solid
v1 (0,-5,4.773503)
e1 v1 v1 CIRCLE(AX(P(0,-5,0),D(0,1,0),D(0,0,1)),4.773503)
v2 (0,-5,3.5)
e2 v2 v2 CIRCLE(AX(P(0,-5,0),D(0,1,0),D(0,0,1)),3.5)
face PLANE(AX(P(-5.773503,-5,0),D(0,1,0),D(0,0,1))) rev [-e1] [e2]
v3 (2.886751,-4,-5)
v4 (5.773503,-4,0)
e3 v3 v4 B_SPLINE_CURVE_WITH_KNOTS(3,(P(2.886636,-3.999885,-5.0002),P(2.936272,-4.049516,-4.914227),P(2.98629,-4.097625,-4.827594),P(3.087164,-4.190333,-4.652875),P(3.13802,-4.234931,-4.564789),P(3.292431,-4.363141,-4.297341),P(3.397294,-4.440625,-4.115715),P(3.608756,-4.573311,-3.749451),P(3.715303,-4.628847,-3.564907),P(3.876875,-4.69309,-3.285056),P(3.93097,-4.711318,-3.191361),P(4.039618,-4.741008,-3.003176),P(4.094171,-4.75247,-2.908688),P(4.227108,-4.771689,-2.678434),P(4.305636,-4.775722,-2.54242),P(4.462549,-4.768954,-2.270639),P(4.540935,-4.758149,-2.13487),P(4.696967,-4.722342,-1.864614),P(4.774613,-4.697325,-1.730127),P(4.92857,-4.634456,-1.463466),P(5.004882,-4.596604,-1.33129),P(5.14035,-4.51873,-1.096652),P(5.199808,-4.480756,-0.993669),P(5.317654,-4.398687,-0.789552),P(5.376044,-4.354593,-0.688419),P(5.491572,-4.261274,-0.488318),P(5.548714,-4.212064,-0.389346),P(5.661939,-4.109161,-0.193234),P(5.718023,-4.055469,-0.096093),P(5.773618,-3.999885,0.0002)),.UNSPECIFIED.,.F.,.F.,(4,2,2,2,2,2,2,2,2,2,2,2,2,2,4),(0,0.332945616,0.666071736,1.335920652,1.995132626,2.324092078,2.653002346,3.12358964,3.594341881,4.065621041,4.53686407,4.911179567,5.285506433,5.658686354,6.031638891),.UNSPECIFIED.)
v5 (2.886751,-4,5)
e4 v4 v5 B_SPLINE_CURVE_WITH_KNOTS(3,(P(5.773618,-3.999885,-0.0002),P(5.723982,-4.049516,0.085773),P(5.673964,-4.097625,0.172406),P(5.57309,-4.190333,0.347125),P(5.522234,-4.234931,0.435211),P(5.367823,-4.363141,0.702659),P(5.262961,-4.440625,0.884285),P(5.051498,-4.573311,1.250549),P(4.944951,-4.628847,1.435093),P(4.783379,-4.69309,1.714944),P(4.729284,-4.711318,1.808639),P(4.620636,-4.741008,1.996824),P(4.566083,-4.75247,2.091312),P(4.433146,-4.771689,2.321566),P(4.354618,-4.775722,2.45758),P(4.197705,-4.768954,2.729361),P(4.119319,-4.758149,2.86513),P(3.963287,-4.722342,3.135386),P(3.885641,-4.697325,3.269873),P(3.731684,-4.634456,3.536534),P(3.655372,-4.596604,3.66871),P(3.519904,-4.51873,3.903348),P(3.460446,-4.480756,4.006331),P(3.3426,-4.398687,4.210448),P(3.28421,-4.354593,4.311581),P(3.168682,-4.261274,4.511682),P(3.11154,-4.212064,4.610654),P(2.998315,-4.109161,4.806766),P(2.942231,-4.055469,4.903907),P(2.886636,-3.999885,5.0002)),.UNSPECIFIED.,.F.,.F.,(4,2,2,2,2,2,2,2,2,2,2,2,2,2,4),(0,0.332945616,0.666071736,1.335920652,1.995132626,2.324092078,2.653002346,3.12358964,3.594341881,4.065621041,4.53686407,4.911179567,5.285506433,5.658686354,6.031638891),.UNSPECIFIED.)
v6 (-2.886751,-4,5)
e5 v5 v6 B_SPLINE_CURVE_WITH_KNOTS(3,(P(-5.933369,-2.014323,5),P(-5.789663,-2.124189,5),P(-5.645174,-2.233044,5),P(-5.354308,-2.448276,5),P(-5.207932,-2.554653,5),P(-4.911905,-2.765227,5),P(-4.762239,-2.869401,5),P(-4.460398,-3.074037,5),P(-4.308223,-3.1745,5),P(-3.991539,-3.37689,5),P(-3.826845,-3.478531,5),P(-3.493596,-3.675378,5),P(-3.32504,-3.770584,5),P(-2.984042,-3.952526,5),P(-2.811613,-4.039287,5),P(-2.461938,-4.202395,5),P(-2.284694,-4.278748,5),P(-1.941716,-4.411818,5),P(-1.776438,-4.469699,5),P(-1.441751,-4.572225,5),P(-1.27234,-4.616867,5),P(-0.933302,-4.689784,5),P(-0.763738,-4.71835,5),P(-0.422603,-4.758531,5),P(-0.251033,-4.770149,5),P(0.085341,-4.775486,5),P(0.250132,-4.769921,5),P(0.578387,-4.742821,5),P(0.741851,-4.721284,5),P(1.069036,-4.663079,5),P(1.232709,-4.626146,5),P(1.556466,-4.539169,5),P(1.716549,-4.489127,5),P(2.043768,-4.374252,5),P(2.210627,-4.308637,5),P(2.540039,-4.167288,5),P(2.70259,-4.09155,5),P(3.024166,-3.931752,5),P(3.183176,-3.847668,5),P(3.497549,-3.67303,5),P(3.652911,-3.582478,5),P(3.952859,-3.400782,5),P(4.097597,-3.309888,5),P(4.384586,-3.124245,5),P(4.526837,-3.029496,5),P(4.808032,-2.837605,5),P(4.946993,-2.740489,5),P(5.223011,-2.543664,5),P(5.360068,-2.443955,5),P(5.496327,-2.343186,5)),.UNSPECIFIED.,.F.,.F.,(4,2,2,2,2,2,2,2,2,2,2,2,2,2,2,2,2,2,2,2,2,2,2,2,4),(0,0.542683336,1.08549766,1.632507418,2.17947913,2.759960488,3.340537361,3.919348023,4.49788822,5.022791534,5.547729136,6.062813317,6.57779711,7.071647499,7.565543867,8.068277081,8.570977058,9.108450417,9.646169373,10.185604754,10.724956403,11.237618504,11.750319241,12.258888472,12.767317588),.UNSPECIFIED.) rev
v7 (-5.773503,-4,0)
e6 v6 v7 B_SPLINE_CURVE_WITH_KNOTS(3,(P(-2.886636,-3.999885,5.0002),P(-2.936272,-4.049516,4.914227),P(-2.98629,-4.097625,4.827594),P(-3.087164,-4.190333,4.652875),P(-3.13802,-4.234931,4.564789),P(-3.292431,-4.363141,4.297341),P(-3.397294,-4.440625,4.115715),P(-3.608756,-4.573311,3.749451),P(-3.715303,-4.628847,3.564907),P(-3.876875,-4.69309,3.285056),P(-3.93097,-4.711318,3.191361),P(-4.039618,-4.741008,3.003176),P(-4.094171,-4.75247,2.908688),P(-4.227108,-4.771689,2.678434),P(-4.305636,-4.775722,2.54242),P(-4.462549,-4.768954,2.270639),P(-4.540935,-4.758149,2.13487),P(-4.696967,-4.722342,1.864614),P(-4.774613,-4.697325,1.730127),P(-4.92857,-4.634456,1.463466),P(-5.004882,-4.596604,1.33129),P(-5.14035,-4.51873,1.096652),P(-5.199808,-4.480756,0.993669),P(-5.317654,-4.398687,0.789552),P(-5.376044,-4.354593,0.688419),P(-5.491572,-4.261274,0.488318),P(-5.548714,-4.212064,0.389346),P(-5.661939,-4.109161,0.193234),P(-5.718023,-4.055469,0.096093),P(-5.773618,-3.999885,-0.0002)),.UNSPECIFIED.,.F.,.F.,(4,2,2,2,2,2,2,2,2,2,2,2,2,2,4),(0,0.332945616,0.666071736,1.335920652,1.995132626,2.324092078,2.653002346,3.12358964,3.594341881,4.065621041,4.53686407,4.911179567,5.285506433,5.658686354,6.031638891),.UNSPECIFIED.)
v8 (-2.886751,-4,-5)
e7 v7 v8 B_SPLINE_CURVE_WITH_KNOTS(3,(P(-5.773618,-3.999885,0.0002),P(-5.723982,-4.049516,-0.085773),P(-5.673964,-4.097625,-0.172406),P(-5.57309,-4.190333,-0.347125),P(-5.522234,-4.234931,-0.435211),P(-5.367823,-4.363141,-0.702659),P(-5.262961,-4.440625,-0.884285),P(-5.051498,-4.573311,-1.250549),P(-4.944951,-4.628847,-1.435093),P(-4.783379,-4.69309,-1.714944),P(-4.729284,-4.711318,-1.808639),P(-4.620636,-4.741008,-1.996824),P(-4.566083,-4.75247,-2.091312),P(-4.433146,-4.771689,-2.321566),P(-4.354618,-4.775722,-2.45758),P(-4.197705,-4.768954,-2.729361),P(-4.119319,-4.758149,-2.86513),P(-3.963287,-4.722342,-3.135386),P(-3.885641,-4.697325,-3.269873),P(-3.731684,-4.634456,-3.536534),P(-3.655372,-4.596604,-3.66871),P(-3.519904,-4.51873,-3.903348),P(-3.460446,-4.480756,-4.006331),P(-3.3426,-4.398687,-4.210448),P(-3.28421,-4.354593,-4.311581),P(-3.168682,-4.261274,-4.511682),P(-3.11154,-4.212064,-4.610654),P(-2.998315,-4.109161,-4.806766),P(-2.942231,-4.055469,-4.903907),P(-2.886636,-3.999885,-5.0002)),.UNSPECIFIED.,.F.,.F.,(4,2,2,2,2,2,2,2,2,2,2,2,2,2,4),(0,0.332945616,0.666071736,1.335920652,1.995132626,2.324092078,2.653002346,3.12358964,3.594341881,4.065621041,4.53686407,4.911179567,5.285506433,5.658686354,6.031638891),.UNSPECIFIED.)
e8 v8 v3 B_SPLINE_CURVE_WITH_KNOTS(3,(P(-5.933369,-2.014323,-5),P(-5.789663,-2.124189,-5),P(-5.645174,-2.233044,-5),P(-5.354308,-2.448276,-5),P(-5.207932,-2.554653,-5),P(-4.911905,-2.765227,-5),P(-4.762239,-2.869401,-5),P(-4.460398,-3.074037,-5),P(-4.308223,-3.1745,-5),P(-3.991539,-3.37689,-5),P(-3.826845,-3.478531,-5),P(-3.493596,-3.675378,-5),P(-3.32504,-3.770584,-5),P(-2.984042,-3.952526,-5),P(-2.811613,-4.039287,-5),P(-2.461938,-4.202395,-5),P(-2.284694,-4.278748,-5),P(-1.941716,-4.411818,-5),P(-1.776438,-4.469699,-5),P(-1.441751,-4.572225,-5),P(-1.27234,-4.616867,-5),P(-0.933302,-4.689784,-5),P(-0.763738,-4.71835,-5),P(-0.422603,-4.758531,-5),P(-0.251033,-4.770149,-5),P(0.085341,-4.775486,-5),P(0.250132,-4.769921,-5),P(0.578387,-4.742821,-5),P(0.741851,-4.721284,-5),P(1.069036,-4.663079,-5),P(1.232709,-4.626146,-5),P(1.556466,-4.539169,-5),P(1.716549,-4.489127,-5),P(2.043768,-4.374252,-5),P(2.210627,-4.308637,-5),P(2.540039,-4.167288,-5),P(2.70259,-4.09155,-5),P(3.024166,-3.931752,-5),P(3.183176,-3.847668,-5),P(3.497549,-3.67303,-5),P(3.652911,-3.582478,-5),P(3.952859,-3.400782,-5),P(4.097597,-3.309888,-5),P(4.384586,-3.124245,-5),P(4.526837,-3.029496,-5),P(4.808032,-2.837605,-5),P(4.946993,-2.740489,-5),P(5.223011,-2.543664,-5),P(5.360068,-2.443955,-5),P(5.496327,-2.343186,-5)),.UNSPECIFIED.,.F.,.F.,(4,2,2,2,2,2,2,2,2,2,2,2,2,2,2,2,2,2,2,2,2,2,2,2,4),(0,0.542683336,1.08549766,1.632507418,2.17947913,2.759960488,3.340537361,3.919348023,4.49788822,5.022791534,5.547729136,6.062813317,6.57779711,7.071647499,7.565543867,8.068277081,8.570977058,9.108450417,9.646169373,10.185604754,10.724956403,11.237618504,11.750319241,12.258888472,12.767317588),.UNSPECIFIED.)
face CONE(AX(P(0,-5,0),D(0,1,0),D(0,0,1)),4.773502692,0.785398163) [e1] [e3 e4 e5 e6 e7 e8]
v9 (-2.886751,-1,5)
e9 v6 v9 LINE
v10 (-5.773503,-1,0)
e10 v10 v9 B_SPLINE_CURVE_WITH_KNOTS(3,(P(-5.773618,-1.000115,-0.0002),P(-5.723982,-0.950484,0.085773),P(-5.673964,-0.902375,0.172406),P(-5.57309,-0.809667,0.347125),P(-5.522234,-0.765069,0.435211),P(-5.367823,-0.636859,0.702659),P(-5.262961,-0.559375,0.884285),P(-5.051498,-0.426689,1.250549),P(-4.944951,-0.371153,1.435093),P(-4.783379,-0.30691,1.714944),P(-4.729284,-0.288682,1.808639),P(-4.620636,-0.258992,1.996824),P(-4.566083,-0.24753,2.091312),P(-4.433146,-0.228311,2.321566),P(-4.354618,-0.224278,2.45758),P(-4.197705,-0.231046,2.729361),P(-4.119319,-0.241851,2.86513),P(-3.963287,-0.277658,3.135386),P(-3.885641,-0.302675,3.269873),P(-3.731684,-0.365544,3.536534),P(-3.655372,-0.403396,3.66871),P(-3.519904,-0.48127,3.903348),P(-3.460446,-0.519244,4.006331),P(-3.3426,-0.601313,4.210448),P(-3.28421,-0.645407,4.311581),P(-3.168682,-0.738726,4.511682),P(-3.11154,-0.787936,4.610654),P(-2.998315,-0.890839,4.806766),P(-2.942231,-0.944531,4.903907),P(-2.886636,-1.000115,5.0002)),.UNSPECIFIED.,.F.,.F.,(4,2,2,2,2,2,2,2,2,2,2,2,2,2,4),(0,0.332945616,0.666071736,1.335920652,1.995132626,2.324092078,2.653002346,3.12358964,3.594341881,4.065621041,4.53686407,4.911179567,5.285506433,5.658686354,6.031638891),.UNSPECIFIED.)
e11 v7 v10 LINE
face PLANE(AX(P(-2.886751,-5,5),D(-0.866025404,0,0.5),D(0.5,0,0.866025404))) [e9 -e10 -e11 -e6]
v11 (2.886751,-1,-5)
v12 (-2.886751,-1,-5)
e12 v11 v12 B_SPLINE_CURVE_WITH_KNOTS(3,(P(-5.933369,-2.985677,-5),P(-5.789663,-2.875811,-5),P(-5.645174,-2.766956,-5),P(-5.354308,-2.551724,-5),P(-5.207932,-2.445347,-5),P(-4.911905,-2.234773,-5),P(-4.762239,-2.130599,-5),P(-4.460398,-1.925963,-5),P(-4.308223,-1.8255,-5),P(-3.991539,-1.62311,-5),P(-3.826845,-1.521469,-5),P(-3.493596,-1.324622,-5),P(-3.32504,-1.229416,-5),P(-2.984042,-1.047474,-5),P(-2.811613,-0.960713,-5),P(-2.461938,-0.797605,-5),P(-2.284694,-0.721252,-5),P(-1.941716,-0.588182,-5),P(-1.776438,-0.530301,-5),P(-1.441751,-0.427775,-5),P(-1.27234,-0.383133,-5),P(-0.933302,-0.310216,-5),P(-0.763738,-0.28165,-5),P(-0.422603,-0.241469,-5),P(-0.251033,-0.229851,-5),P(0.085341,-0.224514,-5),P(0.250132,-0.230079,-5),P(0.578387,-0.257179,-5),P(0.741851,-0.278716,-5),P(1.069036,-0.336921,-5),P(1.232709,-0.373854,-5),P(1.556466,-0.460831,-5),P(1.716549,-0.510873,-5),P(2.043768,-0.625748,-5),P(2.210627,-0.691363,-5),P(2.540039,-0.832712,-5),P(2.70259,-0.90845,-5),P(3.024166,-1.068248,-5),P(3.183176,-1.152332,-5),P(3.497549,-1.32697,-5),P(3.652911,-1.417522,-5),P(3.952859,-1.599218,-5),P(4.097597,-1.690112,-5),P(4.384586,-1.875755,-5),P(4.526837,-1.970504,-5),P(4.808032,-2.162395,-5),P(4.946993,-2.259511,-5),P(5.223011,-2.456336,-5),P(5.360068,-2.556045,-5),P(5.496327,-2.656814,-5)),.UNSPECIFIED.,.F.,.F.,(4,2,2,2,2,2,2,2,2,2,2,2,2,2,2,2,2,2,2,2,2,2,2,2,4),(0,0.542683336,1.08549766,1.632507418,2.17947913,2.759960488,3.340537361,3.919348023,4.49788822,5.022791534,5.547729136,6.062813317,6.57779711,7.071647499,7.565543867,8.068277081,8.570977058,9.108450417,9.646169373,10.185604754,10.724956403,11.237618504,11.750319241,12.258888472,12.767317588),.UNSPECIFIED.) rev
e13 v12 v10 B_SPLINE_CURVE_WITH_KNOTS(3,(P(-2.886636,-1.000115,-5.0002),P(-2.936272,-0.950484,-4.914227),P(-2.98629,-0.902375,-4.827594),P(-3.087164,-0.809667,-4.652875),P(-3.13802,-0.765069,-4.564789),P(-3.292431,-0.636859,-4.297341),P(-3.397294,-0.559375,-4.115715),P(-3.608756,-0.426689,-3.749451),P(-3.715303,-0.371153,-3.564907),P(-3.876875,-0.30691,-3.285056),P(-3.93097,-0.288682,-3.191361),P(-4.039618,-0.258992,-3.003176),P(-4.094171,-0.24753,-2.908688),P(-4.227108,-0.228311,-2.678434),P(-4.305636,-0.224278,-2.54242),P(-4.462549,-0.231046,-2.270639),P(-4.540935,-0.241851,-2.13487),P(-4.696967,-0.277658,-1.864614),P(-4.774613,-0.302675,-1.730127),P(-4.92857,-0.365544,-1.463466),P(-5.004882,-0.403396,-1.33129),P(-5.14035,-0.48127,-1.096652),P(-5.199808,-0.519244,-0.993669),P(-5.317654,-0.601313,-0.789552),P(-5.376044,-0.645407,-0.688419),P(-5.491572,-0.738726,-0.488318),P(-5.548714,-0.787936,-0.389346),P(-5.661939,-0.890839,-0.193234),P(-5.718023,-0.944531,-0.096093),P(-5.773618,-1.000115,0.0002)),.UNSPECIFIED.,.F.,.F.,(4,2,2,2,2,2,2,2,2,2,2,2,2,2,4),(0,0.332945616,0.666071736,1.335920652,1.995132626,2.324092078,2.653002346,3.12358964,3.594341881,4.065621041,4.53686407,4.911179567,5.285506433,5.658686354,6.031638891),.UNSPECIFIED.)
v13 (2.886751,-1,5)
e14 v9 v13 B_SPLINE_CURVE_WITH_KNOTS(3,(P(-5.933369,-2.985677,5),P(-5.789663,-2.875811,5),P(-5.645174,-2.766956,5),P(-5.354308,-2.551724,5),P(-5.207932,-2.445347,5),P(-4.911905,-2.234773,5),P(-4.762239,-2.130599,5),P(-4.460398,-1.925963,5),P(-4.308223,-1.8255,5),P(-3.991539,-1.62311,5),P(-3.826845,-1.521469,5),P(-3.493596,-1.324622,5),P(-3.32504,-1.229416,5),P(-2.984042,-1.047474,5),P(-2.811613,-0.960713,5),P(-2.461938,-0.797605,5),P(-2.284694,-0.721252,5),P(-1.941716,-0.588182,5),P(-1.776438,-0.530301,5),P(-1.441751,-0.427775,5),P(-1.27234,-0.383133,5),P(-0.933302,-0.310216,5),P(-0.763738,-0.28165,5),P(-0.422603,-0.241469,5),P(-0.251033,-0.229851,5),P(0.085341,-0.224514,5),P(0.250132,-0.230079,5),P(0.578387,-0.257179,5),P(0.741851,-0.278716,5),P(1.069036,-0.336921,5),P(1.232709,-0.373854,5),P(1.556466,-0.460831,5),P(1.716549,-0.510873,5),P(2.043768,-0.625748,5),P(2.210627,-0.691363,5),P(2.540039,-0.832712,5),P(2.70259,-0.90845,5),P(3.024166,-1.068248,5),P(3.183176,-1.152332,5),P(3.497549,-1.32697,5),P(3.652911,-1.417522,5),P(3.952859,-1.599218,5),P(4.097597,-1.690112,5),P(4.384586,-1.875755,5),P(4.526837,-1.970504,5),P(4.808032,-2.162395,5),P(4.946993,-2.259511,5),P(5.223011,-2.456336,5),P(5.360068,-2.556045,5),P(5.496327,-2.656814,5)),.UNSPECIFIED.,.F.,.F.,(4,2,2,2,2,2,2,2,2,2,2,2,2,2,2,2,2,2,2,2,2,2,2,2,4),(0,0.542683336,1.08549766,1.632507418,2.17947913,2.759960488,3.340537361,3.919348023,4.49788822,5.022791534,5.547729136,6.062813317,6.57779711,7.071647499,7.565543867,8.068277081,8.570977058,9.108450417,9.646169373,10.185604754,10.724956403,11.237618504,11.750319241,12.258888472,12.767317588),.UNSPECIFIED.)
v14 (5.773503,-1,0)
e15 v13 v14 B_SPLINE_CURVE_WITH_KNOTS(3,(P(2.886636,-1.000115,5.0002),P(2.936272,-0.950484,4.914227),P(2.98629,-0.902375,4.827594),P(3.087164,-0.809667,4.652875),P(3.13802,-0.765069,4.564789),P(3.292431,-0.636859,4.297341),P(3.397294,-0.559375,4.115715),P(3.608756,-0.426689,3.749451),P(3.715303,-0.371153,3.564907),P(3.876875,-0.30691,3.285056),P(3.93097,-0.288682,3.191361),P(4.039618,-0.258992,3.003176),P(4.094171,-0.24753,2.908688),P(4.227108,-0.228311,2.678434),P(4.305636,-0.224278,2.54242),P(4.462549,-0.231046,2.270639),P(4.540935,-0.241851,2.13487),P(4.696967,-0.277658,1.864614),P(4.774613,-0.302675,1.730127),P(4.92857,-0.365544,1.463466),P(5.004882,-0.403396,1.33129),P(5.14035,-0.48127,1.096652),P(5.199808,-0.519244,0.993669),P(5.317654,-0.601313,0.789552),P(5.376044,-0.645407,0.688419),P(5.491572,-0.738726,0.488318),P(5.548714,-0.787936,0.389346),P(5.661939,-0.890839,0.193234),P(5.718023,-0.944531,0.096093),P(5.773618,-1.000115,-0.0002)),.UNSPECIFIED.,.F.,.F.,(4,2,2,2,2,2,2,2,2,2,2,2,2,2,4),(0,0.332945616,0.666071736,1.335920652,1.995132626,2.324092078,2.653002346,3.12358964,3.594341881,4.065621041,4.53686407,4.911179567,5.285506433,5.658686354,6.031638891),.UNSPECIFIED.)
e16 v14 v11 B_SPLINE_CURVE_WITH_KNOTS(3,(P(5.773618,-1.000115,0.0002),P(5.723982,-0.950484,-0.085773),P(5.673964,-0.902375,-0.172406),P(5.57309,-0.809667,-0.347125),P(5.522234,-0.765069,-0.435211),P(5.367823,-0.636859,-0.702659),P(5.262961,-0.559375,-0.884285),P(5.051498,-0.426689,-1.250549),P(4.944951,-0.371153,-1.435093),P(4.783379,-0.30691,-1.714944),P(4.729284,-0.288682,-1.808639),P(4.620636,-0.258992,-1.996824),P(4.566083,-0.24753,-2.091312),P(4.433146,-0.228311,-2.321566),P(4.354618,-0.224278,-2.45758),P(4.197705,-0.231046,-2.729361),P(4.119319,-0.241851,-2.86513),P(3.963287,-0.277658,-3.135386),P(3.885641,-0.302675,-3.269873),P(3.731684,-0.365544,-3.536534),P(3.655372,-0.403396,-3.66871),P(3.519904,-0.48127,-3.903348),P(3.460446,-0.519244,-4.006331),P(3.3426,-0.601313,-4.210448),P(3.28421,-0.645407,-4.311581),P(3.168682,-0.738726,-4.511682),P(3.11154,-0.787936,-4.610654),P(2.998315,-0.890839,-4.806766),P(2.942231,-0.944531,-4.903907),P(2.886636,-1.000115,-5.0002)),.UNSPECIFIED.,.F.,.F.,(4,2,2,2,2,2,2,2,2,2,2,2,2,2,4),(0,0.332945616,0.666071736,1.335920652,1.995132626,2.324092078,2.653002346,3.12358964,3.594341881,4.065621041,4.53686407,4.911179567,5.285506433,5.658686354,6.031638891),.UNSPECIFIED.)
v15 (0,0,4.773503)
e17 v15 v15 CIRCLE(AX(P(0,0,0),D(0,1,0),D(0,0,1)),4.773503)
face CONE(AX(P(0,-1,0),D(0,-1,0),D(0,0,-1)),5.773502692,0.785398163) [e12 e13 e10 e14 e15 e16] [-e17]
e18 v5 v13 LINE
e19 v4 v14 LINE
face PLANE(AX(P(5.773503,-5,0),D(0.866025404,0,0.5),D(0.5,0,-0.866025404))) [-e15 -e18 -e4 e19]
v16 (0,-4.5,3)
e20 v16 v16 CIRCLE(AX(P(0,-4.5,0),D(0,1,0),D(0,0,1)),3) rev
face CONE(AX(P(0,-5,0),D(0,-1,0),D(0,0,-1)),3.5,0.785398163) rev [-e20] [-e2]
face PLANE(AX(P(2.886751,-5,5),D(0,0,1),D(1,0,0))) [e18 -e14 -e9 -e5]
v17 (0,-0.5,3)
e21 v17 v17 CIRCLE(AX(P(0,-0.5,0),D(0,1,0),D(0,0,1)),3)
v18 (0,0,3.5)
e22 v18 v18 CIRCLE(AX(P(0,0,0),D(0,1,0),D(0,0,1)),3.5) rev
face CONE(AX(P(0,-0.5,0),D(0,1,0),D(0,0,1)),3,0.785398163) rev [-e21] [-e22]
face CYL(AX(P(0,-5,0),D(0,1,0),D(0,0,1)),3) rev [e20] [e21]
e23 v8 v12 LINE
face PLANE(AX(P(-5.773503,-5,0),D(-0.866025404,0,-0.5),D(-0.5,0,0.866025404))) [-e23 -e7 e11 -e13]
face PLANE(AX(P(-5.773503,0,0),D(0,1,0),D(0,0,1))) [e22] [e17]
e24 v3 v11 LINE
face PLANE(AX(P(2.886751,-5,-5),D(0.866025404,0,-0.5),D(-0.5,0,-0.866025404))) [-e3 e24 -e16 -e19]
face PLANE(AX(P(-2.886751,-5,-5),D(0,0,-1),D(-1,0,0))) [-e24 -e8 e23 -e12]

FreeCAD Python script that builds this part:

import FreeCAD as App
import Part
import Sketcher

V = App.Vector
Q = App.Units.Quantity


def edges_at(feature, points):
    """Names of the edges that pass closest to the given points."""
    edges = feature.Shape.Edges
    near = lambda p: min(range(len(edges)), key=lambda i: edges[i].distToShape(Part.Vertex(*p))[0])
    return sorted({f"Edge{near(p) + 1}" for p in points})

doc = App.newDocument("Part")
body = doc.addObject("PartDesign::Body", "Body")

# Sketch on XZ plane
sketch1 = body.newObject("Sketcher::SketchObject", "Sketch")
sketch1.AttachmentSupport = (doc.getObject("XZ_Plane"), [""])
sketch1.MapMode = "FlatFace"
sketch1.addGeometry(Part.LineSegment(V(3, -5, 0), V(-3, -5, 0)), False)
sketch1.addGeometry(Part.LineSegment(V(-3, -5, 0), V(-6, 0, 0)), False)
sketch1.addGeometry(Part.LineSegment(V(-6, 0, 0), V(-3, 5, 0)), False)
sketch1.addGeometry(Part.LineSegment(V(-3, 5, 0), V(3, 5, 0)), False)
sketch1.addGeometry(Part.LineSegment(V(3, 5, 0), V(6, 0, 0)), False)
sketch1.addGeometry(Part.LineSegment(V(6, 0, 0), V(3, -5, 0)), False)
sketch1.addConstraint(Sketcher.Constraint("Coincident", 0, 2, 1, 1))
sketch1.addConstraint(Sketcher.Constraint("Coincident", 1, 2, 2, 1))
sketch1.addConstraint(Sketcher.Constraint("Coincident", 2, 2, 3, 1))
sketch1.addConstraint(Sketcher.Constraint("Coincident", 3, 2, 4, 1))
sketch1.addConstraint(Sketcher.Constraint("Coincident", 4, 2, 5, 1))
sketch1.addConstraint(Sketcher.Constraint("Coincident", 5, 2, 0, 1))
sketch1.addConstraint(Sketcher.Constraint("Horizontal", 0))
sketch1.addConstraint(Sketcher.Constraint("Horizontal", 3))
sketch1.addConstraint(Sketcher.Constraint("Symmetric", 0, 2, 3, 2, -1, 1))
sketch1.addConstraint(Sketcher.Constraint("Symmetric", 1, 2, 4, 2, -1, 1))
sketch1.addConstraint(Sketcher.Constraint("PointOnObject", 1, 2, -1))
sketch1.addConstraint(Sketcher.Constraint("Parallel", 2, 5))
sketch1.addConstraint(Sketcher.Constraint("Vertical", 0, 2, 2, 2))
sketch1.addConstraint(Sketcher.Constraint("Angle", 1, Q("120 deg")))
sketch1.addConstraint(Sketcher.Constraint("DistanceY", 0, 2, -1, 1, Q("5 mm")))
sketch1.addConstraint(Sketcher.Constraint("DistanceX", 0, 2, 0, 1, Q("5.773503 mm")))
pad1 = body.newObject("PartDesign::Pad", "Pad")
pad1.Profile = sketch1
pad1.Length = 5

# Sketch on XZ plane
sketch2 = body.newObject("Sketcher::SketchObject", "Sketch001")
sketch2.AttachmentSupport = (doc.getObject("XZ_Plane"), [""])
sketch2.MapMode = "FlatFace"
sketch2.addGeometry(Part.Circle(V(0, 0, 0), V(0, 0, 1), 3), False)
sketch2.addConstraint(Sketcher.Constraint("Coincident", 0, 3, -1, 1))
sketch2.addConstraint(Sketcher.Constraint("Diameter", 0, Q("6 mm")))
pocket1 = body.newObject("PartDesign::Pocket", "Pocket")
pocket1.Profile = sketch2
pocket1.Type = "ThroughAll"
pocket1.Reversed = True
doc.recompute()

chamfer = body.newObject("PartDesign::Chamfer", "Chamfer")
chamfer.Base = (pocket1, edges_at(pocket1, [(0, -5, -3), (0, 0, -3)]))
chamfer.Size = 0.5

# Sketch on XY plane
sketch3 = body.newObject("Sketcher::SketchObject", "Sketch002")
sketch3.AttachmentSupport = (doc.getObject("XY_Plane"), [""])
sketch3.MapMode = "FlatFace"
sketch3.addGeometry(Part.LineSegment(V(-5.8, -1, 0), V(-4.8, 0, 0)), False)
sketch3.addGeometry(Part.LineSegment(V(-4.8, 0, 0), V(-5.8, 0, 0)), False)
sketch3.addGeometry(Part.LineSegment(V(-5.8, 0, 0), V(-5.8, -1, 0)), False)
sketch3.addGeometry(Part.LineSegment(V(-4.8, -5, 0), V(-5.8, -4, 0)), False)
sketch3.addGeometry(Part.LineSegment(V(-5.8, -4, 0), V(-5.8, -5, 0)), False)
sketch3.addGeometry(Part.LineSegment(V(-5.8, -5, 0), V(-4.8, -5, 0)), False)
sketch3.addConstraint(Sketcher.Constraint("Coincident", 0, 2, 1, 1))
sketch3.addConstraint(Sketcher.Constraint("Coincident", 1, 2, 2, 1))
sketch3.addConstraint(Sketcher.Constraint("Coincident", 2, 2, 0, 1))
sketch3.addConstraint(Sketcher.Constraint("Coincident", 3, 2, 4, 1))
sketch3.addConstraint(Sketcher.Constraint("Coincident", 4, 2, 5, 1))
sketch3.addConstraint(Sketcher.Constraint("Coincident", 5, 2, 3, 1))
sketch3.addConstraint(Sketcher.Constraint("Horizontal", 1))
sketch3.addConstraint(Sketcher.Constraint("Vertical", 2))
sketch3.addConstraint(Sketcher.Constraint("Vertical", 4))
sketch3.addConstraint(Sketcher.Constraint("Horizontal", 5))
sketch3.addConstraint(Sketcher.Constraint("PointOnObject", 0, 2, -1))
sketch3.addConstraint(Sketcher.Constraint("Perpendicular", 0, 3))
sketch3.addConstraint(Sketcher.Constraint("Vertical", 2, 2, 3, 2))
sketch3.addConstraint(Sketcher.Constraint("Vertical", 0, 2, 5, 2))
sketch3.addConstraint(Sketcher.Constraint("Equal", 5, 2))
sketch3.addConstraint(Sketcher.Constraint("DistanceX", 1, 2, 1, 1, Q("1 mm")))
sketch3.addConstraint(Sketcher.Constraint("DistanceY", 3, 2, -1, 1, Q("4 mm")))
sketch3.addConstraint(Sketcher.Constraint("DistanceX", 0, 2, -1, 1, Q("4.773503 mm")))
groove = body.newObject("PartDesign::Groove", "Groove")
groove.Profile = sketch3
groove.ReferenceAxis = (sketch3, ["V_Axis"])
groove.Angle = 360

doc.recompute()
